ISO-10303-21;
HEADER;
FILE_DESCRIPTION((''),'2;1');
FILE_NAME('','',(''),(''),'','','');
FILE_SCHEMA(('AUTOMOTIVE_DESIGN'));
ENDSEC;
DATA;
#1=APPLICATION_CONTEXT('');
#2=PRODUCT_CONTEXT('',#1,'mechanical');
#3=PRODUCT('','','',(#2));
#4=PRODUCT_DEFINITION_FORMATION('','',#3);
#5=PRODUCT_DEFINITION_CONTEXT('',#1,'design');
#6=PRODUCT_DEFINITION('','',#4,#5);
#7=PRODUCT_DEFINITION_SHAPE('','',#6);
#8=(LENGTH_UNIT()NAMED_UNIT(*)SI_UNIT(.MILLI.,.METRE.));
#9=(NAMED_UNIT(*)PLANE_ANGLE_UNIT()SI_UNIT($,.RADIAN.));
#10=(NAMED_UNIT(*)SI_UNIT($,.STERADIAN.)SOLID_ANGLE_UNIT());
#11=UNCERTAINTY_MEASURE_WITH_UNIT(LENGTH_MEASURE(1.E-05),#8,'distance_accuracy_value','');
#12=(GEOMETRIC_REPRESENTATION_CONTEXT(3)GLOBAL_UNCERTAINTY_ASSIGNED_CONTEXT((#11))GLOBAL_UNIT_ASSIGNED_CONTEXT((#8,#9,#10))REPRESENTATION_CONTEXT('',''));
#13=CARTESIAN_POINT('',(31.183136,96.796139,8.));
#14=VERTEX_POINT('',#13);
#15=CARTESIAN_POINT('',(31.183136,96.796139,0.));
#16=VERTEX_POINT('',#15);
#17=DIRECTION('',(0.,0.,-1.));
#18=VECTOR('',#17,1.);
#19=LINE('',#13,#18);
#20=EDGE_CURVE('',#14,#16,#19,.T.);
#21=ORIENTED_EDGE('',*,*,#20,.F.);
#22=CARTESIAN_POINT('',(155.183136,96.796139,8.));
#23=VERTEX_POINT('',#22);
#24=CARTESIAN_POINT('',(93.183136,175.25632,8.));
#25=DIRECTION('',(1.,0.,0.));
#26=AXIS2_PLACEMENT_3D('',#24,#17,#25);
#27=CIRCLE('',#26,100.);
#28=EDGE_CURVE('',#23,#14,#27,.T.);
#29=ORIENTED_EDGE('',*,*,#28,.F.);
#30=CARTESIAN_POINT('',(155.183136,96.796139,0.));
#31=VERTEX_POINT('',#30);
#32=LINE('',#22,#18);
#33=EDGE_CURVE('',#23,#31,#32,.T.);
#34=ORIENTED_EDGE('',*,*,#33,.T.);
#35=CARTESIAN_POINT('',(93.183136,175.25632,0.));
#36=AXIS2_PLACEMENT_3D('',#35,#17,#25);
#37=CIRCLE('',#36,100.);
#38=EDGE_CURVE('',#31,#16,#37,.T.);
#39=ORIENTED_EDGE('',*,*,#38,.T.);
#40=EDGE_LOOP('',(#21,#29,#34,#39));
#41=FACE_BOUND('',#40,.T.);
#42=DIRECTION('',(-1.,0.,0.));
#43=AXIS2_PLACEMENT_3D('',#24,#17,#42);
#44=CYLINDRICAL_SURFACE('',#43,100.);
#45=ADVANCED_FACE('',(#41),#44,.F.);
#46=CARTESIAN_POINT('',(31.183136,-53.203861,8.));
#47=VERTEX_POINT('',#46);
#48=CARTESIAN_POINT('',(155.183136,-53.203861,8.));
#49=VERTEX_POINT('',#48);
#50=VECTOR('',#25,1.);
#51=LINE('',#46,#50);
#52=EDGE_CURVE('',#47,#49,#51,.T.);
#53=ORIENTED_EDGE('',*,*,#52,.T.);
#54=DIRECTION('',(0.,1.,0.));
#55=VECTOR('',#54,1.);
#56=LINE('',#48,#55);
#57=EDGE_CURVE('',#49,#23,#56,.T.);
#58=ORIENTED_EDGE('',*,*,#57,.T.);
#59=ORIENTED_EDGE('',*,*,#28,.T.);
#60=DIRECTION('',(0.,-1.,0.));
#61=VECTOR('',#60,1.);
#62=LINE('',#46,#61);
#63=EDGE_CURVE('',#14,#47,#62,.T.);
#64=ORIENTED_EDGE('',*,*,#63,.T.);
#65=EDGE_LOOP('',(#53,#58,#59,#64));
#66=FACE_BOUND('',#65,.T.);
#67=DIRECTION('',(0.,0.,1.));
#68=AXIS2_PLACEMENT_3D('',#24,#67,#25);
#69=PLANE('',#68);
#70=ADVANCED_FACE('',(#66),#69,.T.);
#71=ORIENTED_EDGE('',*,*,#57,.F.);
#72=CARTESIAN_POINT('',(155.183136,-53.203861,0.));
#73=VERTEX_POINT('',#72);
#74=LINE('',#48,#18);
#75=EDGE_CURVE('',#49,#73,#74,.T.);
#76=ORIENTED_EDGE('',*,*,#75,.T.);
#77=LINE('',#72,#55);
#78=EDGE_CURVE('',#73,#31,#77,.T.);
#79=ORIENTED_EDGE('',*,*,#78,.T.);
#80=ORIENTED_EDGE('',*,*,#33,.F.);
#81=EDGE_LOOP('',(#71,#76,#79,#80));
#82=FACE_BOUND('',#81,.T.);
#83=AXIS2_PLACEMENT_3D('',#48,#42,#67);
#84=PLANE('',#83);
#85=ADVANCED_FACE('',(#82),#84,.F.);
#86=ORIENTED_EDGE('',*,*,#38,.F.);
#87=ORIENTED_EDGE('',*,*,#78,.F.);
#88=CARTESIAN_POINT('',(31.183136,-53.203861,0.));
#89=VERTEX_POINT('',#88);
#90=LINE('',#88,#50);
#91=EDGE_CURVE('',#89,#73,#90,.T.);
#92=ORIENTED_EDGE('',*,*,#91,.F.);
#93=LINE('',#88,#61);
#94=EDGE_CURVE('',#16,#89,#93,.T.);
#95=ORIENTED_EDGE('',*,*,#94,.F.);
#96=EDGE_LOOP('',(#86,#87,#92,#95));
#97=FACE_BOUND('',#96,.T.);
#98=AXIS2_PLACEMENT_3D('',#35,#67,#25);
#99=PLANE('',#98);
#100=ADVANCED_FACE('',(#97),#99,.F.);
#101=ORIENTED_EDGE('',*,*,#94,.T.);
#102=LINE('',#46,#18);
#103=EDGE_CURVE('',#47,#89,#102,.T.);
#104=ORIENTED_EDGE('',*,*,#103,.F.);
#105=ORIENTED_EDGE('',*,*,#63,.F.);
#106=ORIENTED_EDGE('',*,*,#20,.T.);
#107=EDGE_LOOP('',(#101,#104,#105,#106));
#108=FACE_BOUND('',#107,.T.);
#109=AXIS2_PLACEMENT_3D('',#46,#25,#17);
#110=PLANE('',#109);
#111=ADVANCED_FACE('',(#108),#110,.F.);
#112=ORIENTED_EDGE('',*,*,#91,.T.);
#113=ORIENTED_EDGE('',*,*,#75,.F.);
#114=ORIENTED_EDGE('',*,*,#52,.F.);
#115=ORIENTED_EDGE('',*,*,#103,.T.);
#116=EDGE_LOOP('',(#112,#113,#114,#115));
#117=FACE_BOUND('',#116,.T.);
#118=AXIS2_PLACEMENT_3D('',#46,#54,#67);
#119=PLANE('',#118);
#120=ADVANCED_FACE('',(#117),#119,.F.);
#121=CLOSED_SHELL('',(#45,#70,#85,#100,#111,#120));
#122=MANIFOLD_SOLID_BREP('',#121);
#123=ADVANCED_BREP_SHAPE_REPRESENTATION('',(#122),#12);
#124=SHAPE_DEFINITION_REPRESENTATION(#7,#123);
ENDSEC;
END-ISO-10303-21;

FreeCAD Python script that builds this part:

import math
import FreeCAD as App
import Part
import Sketcher

V = App.Vector
Q = App.Units.Quantity

doc = App.newDocument("Part")
body = doc.addObject("PartDesign::Body", "Body")

sketch1 = body.newObject("Sketcher::SketchObject", "Sketch")
sketch1.AttachmentSupport = (doc.getObject("XY_Plane"), [""])
sketch1.MapMode = "FlatFace"
sketch1.addGeometry(Part.LineSegment(V(31.183136, -53.203861, 0), V(155.183136, -53.203861, 0)), False)
sketch1.addGeometry(Part.LineSegment(V(155.183136, -53.203861, 0), V(155.183136, 96.796139, 0)), False)
sketch1.addGeometry(Part.ArcOfCircle(Part.Circle(V(93.183136, 175.25632, 0), V(0, 0, 1), 100), math.radians(-128.316134), math.radians(-51.683866)), False)
sketch1.addGeometry(Part.LineSegment(V(31.183136, 96.796139, 0), V(31.183136, -53.203861, 0)), False)
sketch1.addConstraint(Sketcher.Constraint("Coincident", 0, 2, 1, 1))
sketch1.addConstraint(Sketcher.Constraint("Coincident", 1, 2, 2, 2))
sketch1.addConstraint(Sketcher.Constraint("Coincident", 2, 1, 3, 1))
sketch1.addConstraint(Sketcher.Constraint("Coincident", 3, 2, 0, 1))
sketch1.addConstraint(Sketcher.Constraint("Horizontal", 0))
sketch1.addConstraint(Sketcher.Constraint("Vertical", 1))
sketch1.addConstraint(Sketcher.Constraint("Vertical", 3))
sketch1.addConstraint(Sketcher.Constraint("Horizontal", 1, 2, 2, 1))
sketch1.addConstraint(Sketcher.Constraint("Radius", 2, Q("100 mm")))
sketch1.addConstraint(Sketcher.Constraint("DistanceX", 0, 1, 0, 2, Q("124 mm")))
sketch1.addConstraint(Sketcher.Constraint("DistanceY", 1, 1, 1, 2, Q("150 mm")))
sketch1.addConstraint(Sketcher.Constraint("DistanceY", -1, 1, 2, 3, Q("175.25632 mm")))
sketch1.addConstraint(Sketcher.Constraint("DistanceX", -1, 1, 2, 3, Q("93.183136 mm")))
pad1 = body.newObject("PartDesign::Pad", "Pad")
pad1.Profile = sketch1
pad1.Length = 8

doc.recompute()
